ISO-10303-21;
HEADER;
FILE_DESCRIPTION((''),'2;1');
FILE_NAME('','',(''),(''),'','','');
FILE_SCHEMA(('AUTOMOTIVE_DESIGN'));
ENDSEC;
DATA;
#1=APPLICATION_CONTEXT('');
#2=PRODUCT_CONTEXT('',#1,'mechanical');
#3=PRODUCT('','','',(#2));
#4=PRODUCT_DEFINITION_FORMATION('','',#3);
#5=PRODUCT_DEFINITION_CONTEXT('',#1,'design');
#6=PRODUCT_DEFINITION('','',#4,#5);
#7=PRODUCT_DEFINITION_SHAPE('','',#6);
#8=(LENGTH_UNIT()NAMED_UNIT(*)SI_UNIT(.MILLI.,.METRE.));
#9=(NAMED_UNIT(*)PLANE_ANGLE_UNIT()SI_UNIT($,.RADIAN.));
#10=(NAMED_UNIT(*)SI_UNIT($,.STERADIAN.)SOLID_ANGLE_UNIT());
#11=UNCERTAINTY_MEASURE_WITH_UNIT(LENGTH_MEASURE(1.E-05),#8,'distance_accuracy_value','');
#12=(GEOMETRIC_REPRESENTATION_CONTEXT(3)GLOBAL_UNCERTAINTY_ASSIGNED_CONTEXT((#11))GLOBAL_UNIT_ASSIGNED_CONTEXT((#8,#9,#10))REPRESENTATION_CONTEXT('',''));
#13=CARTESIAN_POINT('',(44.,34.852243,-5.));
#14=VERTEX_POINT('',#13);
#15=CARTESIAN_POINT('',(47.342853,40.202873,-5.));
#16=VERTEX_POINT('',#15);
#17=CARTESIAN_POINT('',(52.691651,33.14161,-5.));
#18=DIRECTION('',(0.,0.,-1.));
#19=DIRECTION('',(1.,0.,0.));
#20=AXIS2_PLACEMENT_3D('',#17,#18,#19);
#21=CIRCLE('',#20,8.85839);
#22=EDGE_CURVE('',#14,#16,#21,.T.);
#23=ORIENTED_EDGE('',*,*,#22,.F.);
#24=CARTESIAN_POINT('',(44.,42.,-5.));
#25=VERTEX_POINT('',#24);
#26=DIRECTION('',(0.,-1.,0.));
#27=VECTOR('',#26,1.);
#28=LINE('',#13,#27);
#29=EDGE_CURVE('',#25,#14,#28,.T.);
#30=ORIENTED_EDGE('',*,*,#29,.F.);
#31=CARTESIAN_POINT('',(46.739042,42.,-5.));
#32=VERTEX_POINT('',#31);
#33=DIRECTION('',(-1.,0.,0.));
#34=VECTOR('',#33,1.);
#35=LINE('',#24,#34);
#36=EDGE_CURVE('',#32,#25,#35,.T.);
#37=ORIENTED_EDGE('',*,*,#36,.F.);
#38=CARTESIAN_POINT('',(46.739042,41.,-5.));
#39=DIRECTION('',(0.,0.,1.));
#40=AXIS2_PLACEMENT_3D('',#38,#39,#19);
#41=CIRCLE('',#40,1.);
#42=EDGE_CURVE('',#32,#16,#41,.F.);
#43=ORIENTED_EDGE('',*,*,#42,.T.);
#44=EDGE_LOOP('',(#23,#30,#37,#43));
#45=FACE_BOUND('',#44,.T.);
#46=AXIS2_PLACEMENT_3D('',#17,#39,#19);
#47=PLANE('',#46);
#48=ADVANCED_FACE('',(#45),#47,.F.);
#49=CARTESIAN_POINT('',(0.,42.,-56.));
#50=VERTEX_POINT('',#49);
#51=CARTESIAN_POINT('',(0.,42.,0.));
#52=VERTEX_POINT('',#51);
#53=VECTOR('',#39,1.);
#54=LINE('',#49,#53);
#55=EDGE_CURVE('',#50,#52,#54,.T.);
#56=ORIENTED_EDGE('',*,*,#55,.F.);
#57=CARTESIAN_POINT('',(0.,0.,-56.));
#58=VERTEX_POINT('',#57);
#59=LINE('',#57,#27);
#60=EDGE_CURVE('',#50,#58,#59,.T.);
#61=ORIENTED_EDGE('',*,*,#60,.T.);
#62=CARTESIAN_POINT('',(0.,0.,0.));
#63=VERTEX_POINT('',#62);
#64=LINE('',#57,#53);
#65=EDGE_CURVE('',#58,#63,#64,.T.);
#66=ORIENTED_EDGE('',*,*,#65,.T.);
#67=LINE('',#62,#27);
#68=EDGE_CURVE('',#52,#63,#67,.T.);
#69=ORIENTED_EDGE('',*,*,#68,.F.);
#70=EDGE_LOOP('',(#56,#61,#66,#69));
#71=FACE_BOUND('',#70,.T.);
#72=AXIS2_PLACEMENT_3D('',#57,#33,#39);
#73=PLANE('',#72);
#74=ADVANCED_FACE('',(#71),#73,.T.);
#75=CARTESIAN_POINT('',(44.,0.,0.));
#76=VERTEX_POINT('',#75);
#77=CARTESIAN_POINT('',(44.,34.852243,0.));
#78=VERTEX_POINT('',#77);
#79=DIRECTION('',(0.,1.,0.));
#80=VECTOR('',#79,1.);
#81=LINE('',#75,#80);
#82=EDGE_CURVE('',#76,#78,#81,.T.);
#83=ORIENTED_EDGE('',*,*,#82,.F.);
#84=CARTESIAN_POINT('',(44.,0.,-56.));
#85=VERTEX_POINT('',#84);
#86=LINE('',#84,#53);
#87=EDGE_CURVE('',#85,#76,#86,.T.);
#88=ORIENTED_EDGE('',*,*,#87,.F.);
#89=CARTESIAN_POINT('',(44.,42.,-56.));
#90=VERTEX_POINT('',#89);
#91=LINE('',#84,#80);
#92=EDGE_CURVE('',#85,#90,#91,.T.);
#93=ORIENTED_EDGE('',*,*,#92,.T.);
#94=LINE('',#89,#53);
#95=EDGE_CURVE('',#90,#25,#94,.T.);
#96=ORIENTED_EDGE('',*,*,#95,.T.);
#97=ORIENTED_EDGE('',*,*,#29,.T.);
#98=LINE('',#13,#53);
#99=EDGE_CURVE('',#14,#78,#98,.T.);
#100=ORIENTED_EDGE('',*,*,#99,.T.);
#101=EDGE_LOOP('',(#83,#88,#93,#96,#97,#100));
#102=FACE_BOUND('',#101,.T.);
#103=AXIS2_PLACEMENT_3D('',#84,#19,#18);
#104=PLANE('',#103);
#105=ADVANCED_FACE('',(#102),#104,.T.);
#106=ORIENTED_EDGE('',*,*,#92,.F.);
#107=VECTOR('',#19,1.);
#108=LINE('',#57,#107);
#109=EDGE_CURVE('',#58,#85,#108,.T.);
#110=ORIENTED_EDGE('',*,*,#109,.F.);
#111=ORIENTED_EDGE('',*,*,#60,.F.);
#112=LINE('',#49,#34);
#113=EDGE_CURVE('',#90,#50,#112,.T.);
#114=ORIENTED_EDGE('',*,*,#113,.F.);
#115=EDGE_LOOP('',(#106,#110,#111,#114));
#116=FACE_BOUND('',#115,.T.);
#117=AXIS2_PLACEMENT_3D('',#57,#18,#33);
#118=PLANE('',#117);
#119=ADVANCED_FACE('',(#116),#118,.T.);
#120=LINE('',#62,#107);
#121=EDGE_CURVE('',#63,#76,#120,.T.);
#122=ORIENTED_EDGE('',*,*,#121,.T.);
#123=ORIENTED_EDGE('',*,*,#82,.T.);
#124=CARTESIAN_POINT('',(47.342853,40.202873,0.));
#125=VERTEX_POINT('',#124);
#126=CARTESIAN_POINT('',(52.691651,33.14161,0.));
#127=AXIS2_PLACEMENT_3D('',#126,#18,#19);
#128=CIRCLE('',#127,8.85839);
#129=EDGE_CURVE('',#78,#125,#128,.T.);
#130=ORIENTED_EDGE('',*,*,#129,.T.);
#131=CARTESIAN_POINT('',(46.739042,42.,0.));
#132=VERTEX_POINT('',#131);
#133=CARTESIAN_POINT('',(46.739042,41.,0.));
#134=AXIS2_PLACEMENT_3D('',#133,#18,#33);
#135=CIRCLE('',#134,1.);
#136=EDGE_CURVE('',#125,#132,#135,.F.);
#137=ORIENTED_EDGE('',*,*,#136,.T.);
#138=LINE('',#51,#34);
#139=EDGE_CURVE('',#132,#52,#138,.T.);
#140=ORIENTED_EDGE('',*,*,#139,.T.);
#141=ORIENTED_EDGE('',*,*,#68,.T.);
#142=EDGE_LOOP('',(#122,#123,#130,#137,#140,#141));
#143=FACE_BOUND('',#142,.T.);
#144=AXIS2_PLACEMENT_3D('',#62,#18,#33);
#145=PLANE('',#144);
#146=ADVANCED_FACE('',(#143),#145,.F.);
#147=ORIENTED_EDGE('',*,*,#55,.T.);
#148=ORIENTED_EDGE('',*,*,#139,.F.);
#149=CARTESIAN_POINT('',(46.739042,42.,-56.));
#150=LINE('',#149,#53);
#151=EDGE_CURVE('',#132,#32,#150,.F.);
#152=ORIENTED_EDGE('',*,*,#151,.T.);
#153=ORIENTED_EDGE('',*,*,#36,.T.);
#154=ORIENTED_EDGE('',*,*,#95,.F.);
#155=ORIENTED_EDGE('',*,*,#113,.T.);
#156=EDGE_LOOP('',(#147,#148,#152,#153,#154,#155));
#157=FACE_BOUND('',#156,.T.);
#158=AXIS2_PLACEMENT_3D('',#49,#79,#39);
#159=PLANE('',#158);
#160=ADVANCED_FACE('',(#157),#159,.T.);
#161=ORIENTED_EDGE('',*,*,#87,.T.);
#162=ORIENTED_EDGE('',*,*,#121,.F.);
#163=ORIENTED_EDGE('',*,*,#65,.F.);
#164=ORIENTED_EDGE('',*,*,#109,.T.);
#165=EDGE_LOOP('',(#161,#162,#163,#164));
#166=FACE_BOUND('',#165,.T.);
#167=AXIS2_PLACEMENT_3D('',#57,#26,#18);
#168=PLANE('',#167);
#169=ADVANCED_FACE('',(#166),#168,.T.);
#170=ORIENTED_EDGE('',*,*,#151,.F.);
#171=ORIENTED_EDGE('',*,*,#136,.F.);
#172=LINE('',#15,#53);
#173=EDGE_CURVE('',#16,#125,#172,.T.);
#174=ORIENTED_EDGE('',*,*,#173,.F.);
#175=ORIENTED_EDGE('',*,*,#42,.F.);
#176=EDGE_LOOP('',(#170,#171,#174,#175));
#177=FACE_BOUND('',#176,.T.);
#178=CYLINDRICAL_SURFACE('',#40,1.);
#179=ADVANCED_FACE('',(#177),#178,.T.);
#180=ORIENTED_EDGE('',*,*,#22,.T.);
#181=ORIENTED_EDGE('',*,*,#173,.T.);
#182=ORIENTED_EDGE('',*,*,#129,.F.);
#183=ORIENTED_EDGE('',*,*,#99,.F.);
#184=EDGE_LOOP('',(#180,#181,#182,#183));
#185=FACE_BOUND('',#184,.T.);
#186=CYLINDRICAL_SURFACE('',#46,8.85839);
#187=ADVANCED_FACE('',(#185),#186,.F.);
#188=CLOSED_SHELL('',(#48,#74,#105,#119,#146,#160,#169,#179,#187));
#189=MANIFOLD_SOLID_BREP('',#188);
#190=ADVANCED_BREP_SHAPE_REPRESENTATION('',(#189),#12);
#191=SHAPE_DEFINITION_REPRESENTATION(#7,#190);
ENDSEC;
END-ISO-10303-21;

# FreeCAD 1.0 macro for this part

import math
import FreeCAD as App
import Part
import Sketcher
from FreeCAD import Vector


def edges_at(feature, points):
    """Names of the edges that pass closest to the given points."""
    edges = feature.Shape.Edges
    near = lambda p: min(range(len(edges)), key=lambda i: edges[i].distToShape(Part.Vertex(*p))[0])
    return sorted({f"Edge{near(p) + 1}" for p in points})

doc = App.newDocument("Part")
body = doc.addObject("PartDesign::Body", "Body")

sketch1 = body.newObject("Sketcher::SketchObject", "Sketch")
sketch1.AttachmentSupport = (doc.getObject("XY_Plane"), [""])
sketch1.MapMode = "FlatFace"
sketch1.addGeometry([
    Part.LineSegment(Vector(0, 42, 0), Vector(0, 0, 0)),
    Part.LineSegment(Vector(0, 0, 0), Vector(44, 0, 0)),
    Part.LineSegment(Vector(44, 0, 0), Vector(44, 42, 0)),
    Part.LineSegment(Vector(44, 42, 0), Vector(0, 42, 0)),
], False)
sketch1.addConstraint([
    Sketcher.Constraint("Coincident", 0, 2, 1, 1),
    Sketcher.Constraint("Coincident", 1, 2, 2, 1),
    Sketcher.Constraint("Coincident", 2, 2, 3, 1),
    Sketcher.Constraint("Coincident", 3, 2, 0, 1),
    Sketcher.Constraint("Vertical", 0),
    Sketcher.Constraint("Horizontal", 1),
    Sketcher.Constraint("Vertical", 2),
    Sketcher.Constraint("Horizontal", 3),
    Sketcher.Constraint("Coincident", 0, 2, -1, 1),
    Sketcher.Constraint("DistanceX", 1, 1, 1, 2, 44.0),
    Sketcher.Constraint("DistanceY", 0, 2, 0, 1, 42.0),
])
pad1 = body.newObject("PartDesign::Pad", "Pad")
pad1.Profile = sketch1
pad1.Length = 56
pad1.Reversed = True

sketch2 = body.newObject("Sketcher::SketchObject", "Sketch001")
sketch2.AttachmentSupport = (doc.getObject("XY_Plane"), [""])
sketch2.MapMode = "FlatFace"
sketch2.addGeometry([
    Part.LineSegment(Vector(53, 42, 0), Vector(44, 42, 0)),
    Part.LineSegment(Vector(44, 42, 0), Vector(44, 35, 0)),
    Part.ArcOfCircle(Part.Circle(Vector(53, 33, 0), Vector(0, 0, 1), 9), math.radians(90), math.radians(169)),
], False)
sketch2.addConstraint([
    Sketcher.Constraint("Coincident", 0, 2, 1, 1),
    Sketcher.Constraint("Coincident", 1, 2, 2, 2),
    Sketcher.Constraint("Tangent", 2, 1, 0, 1),
    Sketcher.Constraint("Horizontal", 0),
    Sketcher.Constraint("Vertical", 1),
    Sketcher.Constraint("DistanceX", -1, 1, 0, 2, 44.0),
    Sketcher.Constraint("DistanceY", -1, 1, 0, 2, 42.0),
    Sketcher.Constraint("Radius", 2, 8.85839),
    Sketcher.Constraint("DistanceX", 0, 2, 0, 1, 8.691651),
])
pad2 = body.newObject("PartDesign::Pad", "Pad001")
pad2.Profile = sketch2
pad2.Length = 5
pad2.Reversed = True
doc.recompute()

fillet = body.newObject("PartDesign::Fillet", "Fillet")
fillet.Base = (pad2, edges_at(pad2, [(52.692, 42, -2.5)]))
fillet.Radius = 1

doc.recompute()
